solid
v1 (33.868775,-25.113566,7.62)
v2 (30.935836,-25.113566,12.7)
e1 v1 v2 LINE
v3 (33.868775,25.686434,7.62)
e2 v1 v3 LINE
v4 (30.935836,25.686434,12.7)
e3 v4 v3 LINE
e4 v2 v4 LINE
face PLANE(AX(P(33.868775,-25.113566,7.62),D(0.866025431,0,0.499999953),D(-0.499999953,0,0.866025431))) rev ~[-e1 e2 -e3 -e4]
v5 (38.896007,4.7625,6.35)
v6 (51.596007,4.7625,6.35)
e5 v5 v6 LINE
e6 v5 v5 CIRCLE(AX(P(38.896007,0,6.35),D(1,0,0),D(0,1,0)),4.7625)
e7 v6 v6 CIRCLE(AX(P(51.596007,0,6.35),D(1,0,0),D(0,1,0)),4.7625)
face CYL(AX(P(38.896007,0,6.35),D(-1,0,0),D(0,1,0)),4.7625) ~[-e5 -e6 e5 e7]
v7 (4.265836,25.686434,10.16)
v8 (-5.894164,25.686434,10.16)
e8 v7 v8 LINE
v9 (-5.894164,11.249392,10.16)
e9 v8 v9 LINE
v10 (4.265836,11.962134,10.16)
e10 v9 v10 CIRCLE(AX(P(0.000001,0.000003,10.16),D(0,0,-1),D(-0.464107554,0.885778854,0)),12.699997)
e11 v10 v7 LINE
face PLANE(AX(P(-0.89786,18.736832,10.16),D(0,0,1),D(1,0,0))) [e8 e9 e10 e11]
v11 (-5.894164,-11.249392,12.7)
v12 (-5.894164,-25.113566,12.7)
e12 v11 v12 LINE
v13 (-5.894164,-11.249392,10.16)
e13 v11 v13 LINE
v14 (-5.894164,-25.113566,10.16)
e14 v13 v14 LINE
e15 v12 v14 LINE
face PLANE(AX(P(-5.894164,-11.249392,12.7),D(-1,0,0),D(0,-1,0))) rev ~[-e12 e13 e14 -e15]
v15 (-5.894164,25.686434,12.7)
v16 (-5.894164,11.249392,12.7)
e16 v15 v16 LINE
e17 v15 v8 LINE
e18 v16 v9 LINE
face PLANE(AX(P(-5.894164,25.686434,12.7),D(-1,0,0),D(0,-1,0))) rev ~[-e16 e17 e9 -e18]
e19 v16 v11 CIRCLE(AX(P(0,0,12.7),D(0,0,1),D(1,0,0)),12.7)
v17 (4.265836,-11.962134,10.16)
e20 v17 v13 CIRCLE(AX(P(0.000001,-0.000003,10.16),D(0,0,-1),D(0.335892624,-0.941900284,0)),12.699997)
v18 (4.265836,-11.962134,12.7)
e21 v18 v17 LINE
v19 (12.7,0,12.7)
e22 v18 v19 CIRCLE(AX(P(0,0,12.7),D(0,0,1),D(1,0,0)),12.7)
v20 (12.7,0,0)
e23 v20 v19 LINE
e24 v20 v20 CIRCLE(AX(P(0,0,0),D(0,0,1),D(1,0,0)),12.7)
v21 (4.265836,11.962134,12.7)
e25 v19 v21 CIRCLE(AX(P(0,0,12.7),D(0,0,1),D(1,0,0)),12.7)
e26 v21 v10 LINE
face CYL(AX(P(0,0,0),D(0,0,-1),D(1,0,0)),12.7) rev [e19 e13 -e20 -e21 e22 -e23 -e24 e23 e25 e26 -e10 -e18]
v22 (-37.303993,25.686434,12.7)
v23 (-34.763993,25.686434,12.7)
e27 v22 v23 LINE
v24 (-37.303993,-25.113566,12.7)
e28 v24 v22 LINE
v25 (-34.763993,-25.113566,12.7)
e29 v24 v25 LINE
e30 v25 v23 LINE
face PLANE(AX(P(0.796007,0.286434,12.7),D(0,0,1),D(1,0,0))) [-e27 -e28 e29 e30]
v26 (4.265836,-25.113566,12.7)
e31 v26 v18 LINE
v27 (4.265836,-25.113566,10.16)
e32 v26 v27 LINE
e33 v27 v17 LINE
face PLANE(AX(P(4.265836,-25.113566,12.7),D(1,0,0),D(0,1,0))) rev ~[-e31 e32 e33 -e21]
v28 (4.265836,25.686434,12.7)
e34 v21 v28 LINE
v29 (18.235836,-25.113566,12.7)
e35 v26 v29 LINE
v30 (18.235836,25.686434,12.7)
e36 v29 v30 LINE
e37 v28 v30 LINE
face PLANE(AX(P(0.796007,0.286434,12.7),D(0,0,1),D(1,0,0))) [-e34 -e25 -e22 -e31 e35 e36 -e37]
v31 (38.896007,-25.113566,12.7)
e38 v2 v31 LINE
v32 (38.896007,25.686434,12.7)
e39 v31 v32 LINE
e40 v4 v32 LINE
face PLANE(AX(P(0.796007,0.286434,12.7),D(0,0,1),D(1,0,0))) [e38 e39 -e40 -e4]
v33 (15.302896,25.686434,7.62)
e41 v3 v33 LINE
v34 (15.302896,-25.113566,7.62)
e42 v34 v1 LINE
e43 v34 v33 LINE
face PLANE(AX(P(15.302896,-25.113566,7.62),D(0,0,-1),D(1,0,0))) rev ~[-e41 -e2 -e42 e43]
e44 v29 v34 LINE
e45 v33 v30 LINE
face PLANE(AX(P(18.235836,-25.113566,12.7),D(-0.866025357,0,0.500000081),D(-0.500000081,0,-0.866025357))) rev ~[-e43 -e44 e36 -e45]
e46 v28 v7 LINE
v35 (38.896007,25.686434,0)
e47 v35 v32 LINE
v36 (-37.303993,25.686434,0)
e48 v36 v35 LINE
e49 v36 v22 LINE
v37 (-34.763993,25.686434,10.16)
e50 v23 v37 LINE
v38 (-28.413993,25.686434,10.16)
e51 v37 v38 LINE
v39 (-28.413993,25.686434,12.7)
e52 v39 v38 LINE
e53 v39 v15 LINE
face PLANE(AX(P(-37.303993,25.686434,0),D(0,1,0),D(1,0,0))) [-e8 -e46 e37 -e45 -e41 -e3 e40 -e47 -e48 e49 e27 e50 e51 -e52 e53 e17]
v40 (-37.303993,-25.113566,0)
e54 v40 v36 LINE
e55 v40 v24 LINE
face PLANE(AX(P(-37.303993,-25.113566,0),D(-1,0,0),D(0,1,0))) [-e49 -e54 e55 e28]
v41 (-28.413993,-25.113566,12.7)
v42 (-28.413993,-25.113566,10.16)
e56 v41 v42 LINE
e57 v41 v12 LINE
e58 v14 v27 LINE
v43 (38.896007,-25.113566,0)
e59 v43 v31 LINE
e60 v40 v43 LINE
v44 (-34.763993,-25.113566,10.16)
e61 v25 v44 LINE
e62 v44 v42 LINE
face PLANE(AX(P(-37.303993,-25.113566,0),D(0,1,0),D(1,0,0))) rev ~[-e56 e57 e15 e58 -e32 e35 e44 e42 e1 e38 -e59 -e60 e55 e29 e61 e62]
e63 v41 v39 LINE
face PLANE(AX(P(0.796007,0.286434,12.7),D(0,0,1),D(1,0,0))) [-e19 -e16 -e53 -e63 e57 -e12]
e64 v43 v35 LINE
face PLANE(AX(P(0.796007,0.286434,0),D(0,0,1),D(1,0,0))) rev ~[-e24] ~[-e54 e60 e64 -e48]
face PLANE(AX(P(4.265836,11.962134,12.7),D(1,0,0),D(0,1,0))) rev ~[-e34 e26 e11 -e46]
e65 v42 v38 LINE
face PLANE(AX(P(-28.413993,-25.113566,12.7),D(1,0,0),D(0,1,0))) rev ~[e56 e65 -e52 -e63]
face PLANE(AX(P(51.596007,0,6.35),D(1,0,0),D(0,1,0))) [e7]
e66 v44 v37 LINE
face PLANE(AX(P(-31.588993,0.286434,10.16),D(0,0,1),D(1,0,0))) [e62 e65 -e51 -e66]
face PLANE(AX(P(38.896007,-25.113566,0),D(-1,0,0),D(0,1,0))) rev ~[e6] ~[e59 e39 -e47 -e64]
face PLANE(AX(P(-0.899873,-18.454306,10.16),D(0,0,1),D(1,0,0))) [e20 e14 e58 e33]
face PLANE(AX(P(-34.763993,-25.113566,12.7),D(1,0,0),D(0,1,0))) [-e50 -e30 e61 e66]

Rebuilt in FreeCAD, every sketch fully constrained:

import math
import FreeCAD as App
import Part
import Sketcher
from FreeCAD import Vector
Q = App.Units.Quantity


def add_polygon(sketch, points):
    """Adds a closed chain of lines whose ends are joined by coincident constraints."""
    first, n = sketch.GeometryCount, len(points)
    for a, b in zip(points, points[1:] + points[:1]):
        sketch.addGeometry(Part.LineSegment(App.Vector(*a, 0), App.Vector(*b, 0)), False)
    for i in range(n):
        sketch.addConstraint(Sketcher.Constraint("Coincident", first + i, 2, first + (i + 1) % n, 1))

doc = App.newDocument("Part")
body = doc.addObject("PartDesign::Body", "Body")

sketch1 = body.newObject("Sketcher::SketchObject", "Sketch")
sketch1.AttachmentSupport = (doc.getObject("XY_Plane"), [""])
sketch1.MapMode = "FlatFace"
add_polygon(sketch1, [(-37, 26), (-37, -25), (39, -25), (39, 26)])
sketch1.addGeometry(Part.Circle(Vector(0, 0, 0), Vector(0, 0, 1), 13), False)
sketch1.addConstraint([
    Sketcher.Constraint("Vertical", 0),
    Sketcher.Constraint("Horizontal", 1),
    Sketcher.Constraint("Vertical", 2),
    Sketcher.Constraint("Horizontal", 3),
    Sketcher.Constraint("Coincident", 4, 3, -1, 1),
    Sketcher.Constraint("Diameter", 4, Q("1 in")),
    Sketcher.Constraint("DistanceX", 1, 1, 1, 2, Q("3 in")),
    Sketcher.Constraint("DistanceY", 0, 2, 0, 1, Q("2 in")),
    Sketcher.Constraint("DistanceX", 0, 2, -1, 1, Q("37.303993 mm")),
    Sketcher.Constraint("DistanceY", 0, 2, -1, 1, Q("25.113566 mm")),
])
pad1 = body.newObject("PartDesign::Pad", "Pad")
pad1.Profile = sketch1
pad1.Length = Q("0.5 in")

sketch2 = body.newObject("Sketcher::SketchObject", "Sketch001")
sketch2.AttachmentSupport = (doc.getObject("XY_Plane"), [""])
sketch2.MapMode = "FlatFace"
sketch2.AttachmentOffset = App.Placement(Vector(0, 0, 0.5 * 25.4), App.Rotation())
add_polygon(sketch2, [(-35, 26), (-35, -25), (-28, -25), (-28, 26)])
sketch2.addGeometry(Part.LineSegment(Vector(-6, -11, 0), Vector(-6, -25, 0)), False)
sketch2.addGeometry(Part.LineSegment(Vector(-6, -25, 0), Vector(4, -25, 0)), False)
sketch2.addGeometry(Part.LineSegment(Vector(4, -25, 0), Vector(4, -12, 0)), False)
sketch2.addGeometry(Part.ArcOfCircle(Part.Circle(Vector(0, 0, 0), Vector(0, 0, 1), 13), math.radians(-118), math.radians(-70)), False)
sketch2.addGeometry(Part.LineSegment(Vector(4, 26, 0), Vector(-6, 26, 0)), False)
sketch2.addGeometry(Part.LineSegment(Vector(-6, 26, 0), Vector(-6, 11, 0)), False)
sketch2.addGeometry(Part.ArcOfCircle(Part.Circle(Vector(0, 0, 0), Vector(0, 0, 1), 13), math.radians(70), math.radians(118)), False)
sketch2.addGeometry(Part.LineSegment(Vector(4, 12, 0), Vector(4, 26, 0)), False)
sketch2.addConstraint([
    Sketcher.Constraint("Coincident", 4, 2, 5, 1),
    Sketcher.Constraint("Coincident", 5, 2, 6, 1),
    Sketcher.Constraint("Coincident", 6, 2, 7, 2),
    Sketcher.Constraint("Coincident", 7, 1, 4, 1),
    Sketcher.Constraint("Coincident", 8, 2, 9, 1),
    Sketcher.Constraint("Coincident", 9, 2, 10, 2),
    Sketcher.Constraint("Coincident", 10, 1, 11, 1),
    Sketcher.Constraint("Coincident", 11, 2, 8, 1),
    Sketcher.Constraint("Vertical", 0),
    Sketcher.Constraint("Horizontal", 1),
    Sketcher.Constraint("Vertical", 2),
    Sketcher.Constraint("Horizontal", 3),
    Sketcher.Constraint("Vertical", 4),
    Sketcher.Constraint("Horizontal", 5),
    Sketcher.Constraint("Vertical", 6),
    Sketcher.Constraint("Horizontal", 8),
    Sketcher.Constraint("Vertical", 9),
    Sketcher.Constraint("Vertical", 11),
    Sketcher.Constraint("Coincident", 7, 3, -1, 1),
    Sketcher.Constraint("Coincident", 10, 3, -1, 1),
    Sketcher.Constraint("Equal", 7, 10),
    Sketcher.Constraint("Horizontal", 1, 2, 4, 2),
    Sketcher.Constraint("Horizontal", 3, 2, 8, 2),
    Sketcher.Constraint("Vertical", 7, 1, 8, 2),
    Sketcher.Constraint("Vertical", 6, 2, 10, 1),
    Sketcher.Constraint("Radius", 7, Q("0.4999999 in")),
    Sketcher.Constraint("DistanceY", 0, 2, 0, 1, Q("2 in")),
    Sketcher.Constraint("DistanceX", 5, 1, 5, 2, Q("0.4 in")),
    Sketcher.Constraint("DistanceX", 1, 1, 1, 2, Q("0.25 in")),
    Sketcher.Constraint("DistanceY", 11, 1, 11, 2, Q("13.7243 mm")),
    Sketcher.Constraint("DistanceY", 6, 1, 6, 2, Q("13.151432 mm")),
    Sketcher.Constraint("DistanceX", 1, 2, 4, 2, Q("22.519829 mm")),
])
pocket1 = body.newObject("PartDesign::Pocket", "Pocket")
pocket1.Profile = sketch2
pocket1.Length = Q("0.1 in")

sketch3 = body.newObject("Sketcher::SketchObject", "Sketch002")
sketch3.AttachmentSupport = (doc.getObject("XZ_Plane"), [""])
sketch3.MapMode = "FlatFace"
sketch3.AttachmentOffset = App.Placement(Vector(0, 0, 25.113566), App.Rotation())
add_polygon(sketch3, [(31, 13), (18, 13), (15, 8), (34, 8)])
sketch3.addConstraint([
    Sketcher.Constraint("Horizontal", 0),
    Sketcher.Constraint("Horizontal", 2),
    Sketcher.Constraint("Equal", 1, 3),
    Sketcher.Constraint("DistanceX", 0, 2, 0, 1, Q("0.5 in")),
    Sketcher.Constraint("Angle", 1, Q("-120.000005 deg")),
    Sketcher.Constraint("DistanceY", -1, 1, 0, 2, Q("0.5 in")),
    Sketcher.Constraint("DistanceY", -1, 1, 1, 2, Q("0.3 in")),
    Sketcher.Constraint("DistanceX", -1, 1, 0, 2, Q("18.235836 mm")),
])
pocket2 = body.newObject("PartDesign::Pocket", "Pocket001")
pocket2.Profile = sketch3
pocket2.Type = "ThroughAll"

sketch4 = body.newObject("Sketcher::SketchObject", "Sketch003")
sketch4.AttachmentSupport = (doc.getObject("YZ_Plane"), [""])
sketch4.MapMode = "FlatFace"
sketch4.AttachmentOffset = App.Placement(Vector(0, 0, 38.896007), App.Rotation())
sketch4.addGeometry(Part.Circle(Vector(0, 6.3, 0), Vector(0, 0, 1), 4.8), False)
sketch4.addConstraint([
    Sketcher.Constraint("PointOnObject", 0, 3, -2),
    Sketcher.Constraint("Diameter", 0, Q("0.375 in")),
    Sketcher.Constraint("DistanceY", -1, 1, 0, 3, Q("0.25 in")),
])
pad2 = body.newObject("PartDesign::Pad", "Pad001")
pad2.Profile = sketch4
pad2.Length = Q("0.5 in")

doc.recompute()
